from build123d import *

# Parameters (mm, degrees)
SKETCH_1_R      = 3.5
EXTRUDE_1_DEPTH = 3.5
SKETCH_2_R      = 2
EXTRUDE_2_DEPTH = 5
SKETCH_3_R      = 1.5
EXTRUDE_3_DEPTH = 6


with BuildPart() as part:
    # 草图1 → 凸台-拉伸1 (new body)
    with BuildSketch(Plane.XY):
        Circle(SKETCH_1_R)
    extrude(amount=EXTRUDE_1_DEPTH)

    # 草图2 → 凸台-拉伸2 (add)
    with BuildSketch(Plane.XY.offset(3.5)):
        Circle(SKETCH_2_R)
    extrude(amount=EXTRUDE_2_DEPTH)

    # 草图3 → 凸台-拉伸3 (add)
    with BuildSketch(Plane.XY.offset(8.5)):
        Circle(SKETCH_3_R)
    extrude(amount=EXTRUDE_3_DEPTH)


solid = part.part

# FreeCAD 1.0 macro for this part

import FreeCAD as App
import Part
import Sketcher

V = App.Vector
Q = App.Units.Quantity

doc = App.newDocument("Part")
body = doc.addObject("PartDesign::Body", "Body")

# Sketch on XY plane
sketch1 = doc.addObject("Sketcher::SketchObject", "Sketch")
body.addObject(sketch1)
sketch1.AttachmentSupport = (doc.XY_Plane, [""])
sketch1.MapMode = "FlatFace"
sketch1.addGeometry(Part.Circle(V(0, 0, 0), V(0, 0, 1), 3.5), False)
sketch1.addConstraint(Sketcher.Constraint("Coincident", 0, 3, -1, 1))
sketch1.addConstraint(Sketcher.Constraint("Diameter", 0, Q("7 mm")))
pad1 = doc.addObject("PartDesign::Pad", "Pad")
body.addObject(pad1)
pad1.Profile = sketch1
pad1.Length = 3.5

# Sketch on XY plane
sketch2 = doc.addObject("Sketcher::SketchObject", "Sketch001")
body.addObject(sketch2)
sketch2.AttachmentSupport = (doc.XY_Plane, [""])
sketch2.MapMode = "FlatFace"
sketch2.AttachmentOffset = App.Placement(V(0, 0, 3.5), App.Rotation())
sketch2.addGeometry(Part.Circle(V(0, 0, 0), V(0, 0, 1), 2), False)
sketch2.addConstraint(Sketcher.Constraint("Coincident", 0, 3, -1, 1))
sketch2.addConstraint(Sketcher.Constraint("Diameter", 0, Q("4 mm")))
pad2 = doc.addObject("PartDesign::Pad", "Pad001")
body.addObject(pad2)
pad2.Profile = sketch2
pad2.Length = 5

# Sketch on XY plane
sketch3 = doc.addObject("Sketcher::SketchObject", "Sketch002")
body.addObject(sketch3)
sketch3.AttachmentSupport = (doc.XY_Plane, [""])
sketch3.MapMode = "FlatFace"
sketch3.AttachmentOffset = App.Placement(V(0, 0, 8.5), App.Rotation())
sketch3.addGeometry(Part.Circle(V(0, 0, 0), V(0, 0, 1), 1.5), False)
sketch3.addConstraint(Sketcher.Constraint("Coincident", 0, 3, -1, 1))
sketch3.addConstraint(Sketcher.Constraint("Diameter", 0, Q("3 mm")))
pad3 = doc.addObject("PartDesign::Pad", "Pad002")
body.addObject(pad3)
pad3.Profile = sketch3
pad3.Length = 6

doc.recompute()
